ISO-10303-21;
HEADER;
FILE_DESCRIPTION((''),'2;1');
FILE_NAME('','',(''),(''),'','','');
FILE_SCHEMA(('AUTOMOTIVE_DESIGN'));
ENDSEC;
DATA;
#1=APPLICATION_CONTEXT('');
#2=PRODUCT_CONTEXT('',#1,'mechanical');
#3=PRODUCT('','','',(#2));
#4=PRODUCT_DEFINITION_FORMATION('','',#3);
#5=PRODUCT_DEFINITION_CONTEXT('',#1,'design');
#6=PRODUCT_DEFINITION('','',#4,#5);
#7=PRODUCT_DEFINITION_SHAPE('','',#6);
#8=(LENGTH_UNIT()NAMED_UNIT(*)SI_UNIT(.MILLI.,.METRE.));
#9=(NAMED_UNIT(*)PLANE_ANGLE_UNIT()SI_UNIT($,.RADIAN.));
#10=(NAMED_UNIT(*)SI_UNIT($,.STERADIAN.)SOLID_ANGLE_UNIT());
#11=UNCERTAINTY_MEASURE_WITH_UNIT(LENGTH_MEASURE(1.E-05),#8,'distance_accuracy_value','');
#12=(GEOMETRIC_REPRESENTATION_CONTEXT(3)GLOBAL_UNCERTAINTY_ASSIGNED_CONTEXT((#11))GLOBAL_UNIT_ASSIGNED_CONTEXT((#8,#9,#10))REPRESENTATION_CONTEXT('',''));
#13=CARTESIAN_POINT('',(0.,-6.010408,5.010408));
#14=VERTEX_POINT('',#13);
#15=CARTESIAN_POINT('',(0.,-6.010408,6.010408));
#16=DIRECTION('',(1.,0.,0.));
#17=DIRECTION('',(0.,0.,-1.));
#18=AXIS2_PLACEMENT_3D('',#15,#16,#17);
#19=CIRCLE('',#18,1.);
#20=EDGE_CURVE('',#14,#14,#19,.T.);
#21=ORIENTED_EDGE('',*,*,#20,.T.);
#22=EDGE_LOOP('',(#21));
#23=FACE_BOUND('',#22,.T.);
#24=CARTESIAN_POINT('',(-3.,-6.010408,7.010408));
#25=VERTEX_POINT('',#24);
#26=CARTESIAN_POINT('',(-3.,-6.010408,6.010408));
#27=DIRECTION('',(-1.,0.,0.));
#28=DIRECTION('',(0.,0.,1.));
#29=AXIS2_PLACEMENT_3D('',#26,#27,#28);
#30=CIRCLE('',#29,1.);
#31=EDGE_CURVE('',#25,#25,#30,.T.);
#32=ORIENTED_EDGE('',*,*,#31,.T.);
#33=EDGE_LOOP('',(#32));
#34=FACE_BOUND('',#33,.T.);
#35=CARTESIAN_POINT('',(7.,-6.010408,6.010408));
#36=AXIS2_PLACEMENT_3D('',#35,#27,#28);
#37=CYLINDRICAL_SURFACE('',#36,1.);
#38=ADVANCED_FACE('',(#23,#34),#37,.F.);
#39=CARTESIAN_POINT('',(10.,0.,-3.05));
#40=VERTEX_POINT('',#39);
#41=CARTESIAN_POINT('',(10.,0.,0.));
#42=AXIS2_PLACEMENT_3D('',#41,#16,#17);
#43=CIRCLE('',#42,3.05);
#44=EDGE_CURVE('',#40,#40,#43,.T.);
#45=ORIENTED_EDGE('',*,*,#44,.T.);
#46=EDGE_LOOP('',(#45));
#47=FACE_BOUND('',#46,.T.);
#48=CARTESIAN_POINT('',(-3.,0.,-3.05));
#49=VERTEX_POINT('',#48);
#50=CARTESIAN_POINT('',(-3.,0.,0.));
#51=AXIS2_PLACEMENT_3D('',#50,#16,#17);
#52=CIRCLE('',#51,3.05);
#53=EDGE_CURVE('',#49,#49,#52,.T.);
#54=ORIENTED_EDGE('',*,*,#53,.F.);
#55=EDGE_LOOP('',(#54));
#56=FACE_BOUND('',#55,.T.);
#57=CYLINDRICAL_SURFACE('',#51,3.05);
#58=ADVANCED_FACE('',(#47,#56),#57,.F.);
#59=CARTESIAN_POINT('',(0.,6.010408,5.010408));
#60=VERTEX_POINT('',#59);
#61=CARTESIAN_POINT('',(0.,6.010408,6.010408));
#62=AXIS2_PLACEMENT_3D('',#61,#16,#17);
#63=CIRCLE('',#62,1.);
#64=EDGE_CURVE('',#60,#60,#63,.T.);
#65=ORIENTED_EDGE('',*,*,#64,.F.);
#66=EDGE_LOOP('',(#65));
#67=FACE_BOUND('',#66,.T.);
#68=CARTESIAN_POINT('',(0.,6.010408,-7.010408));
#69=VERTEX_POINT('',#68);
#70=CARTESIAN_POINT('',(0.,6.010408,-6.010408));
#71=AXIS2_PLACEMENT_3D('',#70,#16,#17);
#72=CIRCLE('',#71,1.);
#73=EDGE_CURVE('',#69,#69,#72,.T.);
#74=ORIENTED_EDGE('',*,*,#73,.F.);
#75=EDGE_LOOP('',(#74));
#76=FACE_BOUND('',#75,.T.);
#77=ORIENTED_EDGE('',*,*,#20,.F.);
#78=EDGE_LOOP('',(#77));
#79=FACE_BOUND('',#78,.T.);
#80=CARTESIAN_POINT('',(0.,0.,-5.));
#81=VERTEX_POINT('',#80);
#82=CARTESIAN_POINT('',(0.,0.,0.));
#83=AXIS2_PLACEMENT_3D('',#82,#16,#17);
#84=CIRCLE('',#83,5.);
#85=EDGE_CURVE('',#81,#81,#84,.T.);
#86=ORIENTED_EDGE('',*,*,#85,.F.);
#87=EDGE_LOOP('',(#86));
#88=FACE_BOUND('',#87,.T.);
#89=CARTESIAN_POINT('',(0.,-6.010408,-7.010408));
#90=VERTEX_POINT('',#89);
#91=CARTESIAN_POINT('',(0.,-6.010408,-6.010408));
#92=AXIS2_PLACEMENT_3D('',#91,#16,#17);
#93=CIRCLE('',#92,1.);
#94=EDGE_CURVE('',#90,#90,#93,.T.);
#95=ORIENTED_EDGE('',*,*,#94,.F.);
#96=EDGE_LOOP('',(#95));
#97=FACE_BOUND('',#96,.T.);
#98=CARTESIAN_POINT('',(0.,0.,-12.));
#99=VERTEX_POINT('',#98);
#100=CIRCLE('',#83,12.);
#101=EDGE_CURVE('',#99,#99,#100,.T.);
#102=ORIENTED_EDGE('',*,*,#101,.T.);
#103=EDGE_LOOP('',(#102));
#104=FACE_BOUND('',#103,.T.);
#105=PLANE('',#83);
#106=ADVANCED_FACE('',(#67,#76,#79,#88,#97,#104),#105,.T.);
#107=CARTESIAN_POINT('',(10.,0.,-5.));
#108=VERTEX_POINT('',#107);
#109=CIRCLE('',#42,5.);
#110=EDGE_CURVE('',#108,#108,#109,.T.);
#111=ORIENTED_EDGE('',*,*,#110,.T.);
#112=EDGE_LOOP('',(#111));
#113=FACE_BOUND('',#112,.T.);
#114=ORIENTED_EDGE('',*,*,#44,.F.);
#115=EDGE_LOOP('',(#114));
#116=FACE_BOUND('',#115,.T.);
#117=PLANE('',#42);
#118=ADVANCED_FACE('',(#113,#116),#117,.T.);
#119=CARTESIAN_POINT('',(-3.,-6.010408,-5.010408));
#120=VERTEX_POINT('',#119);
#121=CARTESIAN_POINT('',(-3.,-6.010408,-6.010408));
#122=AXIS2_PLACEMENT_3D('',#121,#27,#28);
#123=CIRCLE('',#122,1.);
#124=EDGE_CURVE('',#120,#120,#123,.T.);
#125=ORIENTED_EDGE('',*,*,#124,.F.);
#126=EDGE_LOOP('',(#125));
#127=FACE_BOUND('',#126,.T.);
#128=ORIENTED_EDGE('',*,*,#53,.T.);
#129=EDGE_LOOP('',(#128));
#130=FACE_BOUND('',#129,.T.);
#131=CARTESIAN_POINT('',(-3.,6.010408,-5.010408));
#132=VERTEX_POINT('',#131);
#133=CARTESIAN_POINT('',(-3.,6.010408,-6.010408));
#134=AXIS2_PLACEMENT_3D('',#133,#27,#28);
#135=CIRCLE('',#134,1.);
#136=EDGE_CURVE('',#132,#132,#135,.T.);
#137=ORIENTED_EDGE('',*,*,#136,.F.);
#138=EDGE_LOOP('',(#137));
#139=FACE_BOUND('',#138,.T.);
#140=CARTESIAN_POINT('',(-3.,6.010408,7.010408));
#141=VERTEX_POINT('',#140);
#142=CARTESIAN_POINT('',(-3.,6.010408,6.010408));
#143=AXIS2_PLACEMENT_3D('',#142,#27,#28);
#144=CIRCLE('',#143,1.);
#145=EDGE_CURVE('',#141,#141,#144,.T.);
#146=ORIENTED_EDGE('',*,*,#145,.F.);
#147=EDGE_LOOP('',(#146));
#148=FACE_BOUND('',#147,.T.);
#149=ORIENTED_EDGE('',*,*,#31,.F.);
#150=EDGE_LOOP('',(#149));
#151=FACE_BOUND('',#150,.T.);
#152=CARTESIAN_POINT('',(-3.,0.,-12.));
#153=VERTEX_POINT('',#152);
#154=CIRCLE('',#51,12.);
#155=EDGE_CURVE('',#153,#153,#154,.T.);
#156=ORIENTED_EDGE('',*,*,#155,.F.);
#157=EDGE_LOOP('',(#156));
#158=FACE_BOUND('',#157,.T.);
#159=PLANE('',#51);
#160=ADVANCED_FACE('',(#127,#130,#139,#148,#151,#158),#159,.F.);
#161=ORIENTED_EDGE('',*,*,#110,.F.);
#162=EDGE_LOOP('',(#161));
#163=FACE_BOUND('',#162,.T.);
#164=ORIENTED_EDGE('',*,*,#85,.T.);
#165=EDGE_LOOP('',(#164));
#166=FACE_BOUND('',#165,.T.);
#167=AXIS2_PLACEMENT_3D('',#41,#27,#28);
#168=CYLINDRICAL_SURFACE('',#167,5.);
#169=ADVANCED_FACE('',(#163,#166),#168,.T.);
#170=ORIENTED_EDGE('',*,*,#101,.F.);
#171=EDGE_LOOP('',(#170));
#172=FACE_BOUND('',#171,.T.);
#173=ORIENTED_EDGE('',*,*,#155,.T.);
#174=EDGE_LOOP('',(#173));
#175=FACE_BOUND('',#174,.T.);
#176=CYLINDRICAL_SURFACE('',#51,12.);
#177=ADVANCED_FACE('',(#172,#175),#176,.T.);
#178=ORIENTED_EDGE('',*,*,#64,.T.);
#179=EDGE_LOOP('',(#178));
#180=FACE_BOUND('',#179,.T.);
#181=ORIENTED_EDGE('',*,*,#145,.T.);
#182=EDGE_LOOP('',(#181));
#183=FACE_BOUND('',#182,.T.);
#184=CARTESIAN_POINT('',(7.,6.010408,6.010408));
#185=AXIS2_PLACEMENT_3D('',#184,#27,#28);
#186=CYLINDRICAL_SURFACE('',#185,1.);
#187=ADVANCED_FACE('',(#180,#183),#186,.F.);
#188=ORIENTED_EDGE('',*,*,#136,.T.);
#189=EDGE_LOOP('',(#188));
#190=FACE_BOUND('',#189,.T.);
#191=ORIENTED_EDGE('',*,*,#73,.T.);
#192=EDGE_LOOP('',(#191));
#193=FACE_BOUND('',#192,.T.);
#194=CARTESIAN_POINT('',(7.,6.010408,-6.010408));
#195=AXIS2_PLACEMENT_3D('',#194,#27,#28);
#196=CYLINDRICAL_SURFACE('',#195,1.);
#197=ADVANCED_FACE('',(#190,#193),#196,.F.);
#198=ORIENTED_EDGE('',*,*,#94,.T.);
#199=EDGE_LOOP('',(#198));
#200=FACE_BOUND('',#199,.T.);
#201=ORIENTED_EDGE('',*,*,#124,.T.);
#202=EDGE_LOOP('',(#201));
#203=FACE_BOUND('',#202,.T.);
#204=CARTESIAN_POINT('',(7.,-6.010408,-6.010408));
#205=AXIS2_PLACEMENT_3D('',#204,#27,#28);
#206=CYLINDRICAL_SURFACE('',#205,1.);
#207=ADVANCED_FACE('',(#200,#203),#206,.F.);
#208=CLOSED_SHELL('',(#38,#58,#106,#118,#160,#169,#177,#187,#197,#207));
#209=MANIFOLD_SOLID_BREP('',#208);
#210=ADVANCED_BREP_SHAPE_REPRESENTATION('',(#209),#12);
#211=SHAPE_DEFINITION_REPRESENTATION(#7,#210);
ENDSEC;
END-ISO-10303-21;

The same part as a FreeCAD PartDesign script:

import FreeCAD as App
import Part
import Sketcher
Q = App.Units.Quantity

doc = App.newDocument("Part")
body = doc.addObject("PartDesign::Body", "Body")

sketch1 = body.newObject("Sketcher::SketchObject", "Sketch")
sketch1.AttachmentSupport = (doc.getObject("YZ_Plane"), [""])
sketch1.MapMode = "FlatFace"
sketch1.addGeometry([
    Part.Circle(App.Vector(0, 0, 0), App.Vector(0, 0, 1), 12),
    Part.Circle(App.Vector(0, 0, 0), App.Vector(0, 0, 1), 3),
], False)
sketch1.addConstraint([
    Sketcher.Constraint("Coincident", 0, 3, -1, 1),
    Sketcher.Constraint("Coincident", 1, 3, -1, 1),
    Sketcher.Constraint("Diameter", 0, Q("24 mm")),
    Sketcher.Constraint("Diameter", 1, Q("6.1 mm")),
])
pad1 = body.newObject("PartDesign::Pad", "Pad")
pad1.Profile = sketch1
pad1.Length = 3
pad1.Reversed = True

sketch2 = body.newObject("Sketcher::SketchObject", "Sketch001")
sketch2.AttachmentSupport = (doc.getObject("YZ_Plane"), [""])
sketch2.MapMode = "FlatFace"
sketch2.AttachmentOffset = App.Placement(App.Vector(0, 0, 10), App.Rotation())
sketch2.addGeometry([
    Part.Circle(App.Vector(0, 0, 0), App.Vector(0, 0, 1), 5),
    Part.Circle(App.Vector(0, 0, 0), App.Vector(0, 0, 1), 3),
], False)
sketch2.addConstraint([
    Sketcher.Constraint("Coincident", 0, 3, -1, 1),
    Sketcher.Constraint("Coincident", 1, 3, -1, 1),
    Sketcher.Constraint("Diameter", 0, Q("10 mm")),
    Sketcher.Constraint("Diameter", 1, Q("6.1 mm")),
])
pad2 = body.newObject("PartDesign::Pad", "Pad001")
pad2.Profile = sketch2
pad2.Length = 10
pad2.Reversed = True

sketch3 = body.newObject("Sketcher::SketchObject", "Sketch002")
sketch3.AttachmentSupport = (doc.getObject("YZ_Plane"), [""])
sketch3.MapMode = "FlatFace"
sketch3.AttachmentOffset = App.Placement(App.Vector(0, 0, -3), App.Rotation())
sketch3.addGeometry([
    Part.Circle(App.Vector(6, -6, 0), App.Vector(0, 0, 1), 1),
    Part.Circle(App.Vector(-6, -6, 0), App.Vector(0, 0, 1), 1),
    Part.Circle(App.Vector(6, 6, 0), App.Vector(0, 0, 1), 1),
    Part.Circle(App.Vector(-6, 6, 0), App.Vector(0, 0, 1), 1),
], False)
sketch3.addConstraint([
    Sketcher.Constraint("Equal", 0, 1),
    Sketcher.Constraint("Equal", 1, 2),
    Sketcher.Constraint("Equal", 2, 3),
    Sketcher.Constraint("Symmetric", 1, 3, 2, 3, -1, 1),
    Sketcher.Constraint("Symmetric", 0, 3, 3, 3, -1, 1),
    Sketcher.Constraint("Symmetric", 0, 3, 1, 3, -2),
    Sketcher.Constraint("Diameter", 0, Q("2 mm")),
    Sketcher.Constraint("DistanceX", -1, 1, 0, 3, Q("6.010408 mm")),
    Sketcher.Constraint("DistanceY", 0, 3, -1, 1, Q("6.010408 mm")),
])
pocket1 = body.newObject("PartDesign::Pocket", "Pocket")
pocket1.Profile = sketch3
pocket1.Length = 10
pocket1.Reversed = True

doc.recompute()
